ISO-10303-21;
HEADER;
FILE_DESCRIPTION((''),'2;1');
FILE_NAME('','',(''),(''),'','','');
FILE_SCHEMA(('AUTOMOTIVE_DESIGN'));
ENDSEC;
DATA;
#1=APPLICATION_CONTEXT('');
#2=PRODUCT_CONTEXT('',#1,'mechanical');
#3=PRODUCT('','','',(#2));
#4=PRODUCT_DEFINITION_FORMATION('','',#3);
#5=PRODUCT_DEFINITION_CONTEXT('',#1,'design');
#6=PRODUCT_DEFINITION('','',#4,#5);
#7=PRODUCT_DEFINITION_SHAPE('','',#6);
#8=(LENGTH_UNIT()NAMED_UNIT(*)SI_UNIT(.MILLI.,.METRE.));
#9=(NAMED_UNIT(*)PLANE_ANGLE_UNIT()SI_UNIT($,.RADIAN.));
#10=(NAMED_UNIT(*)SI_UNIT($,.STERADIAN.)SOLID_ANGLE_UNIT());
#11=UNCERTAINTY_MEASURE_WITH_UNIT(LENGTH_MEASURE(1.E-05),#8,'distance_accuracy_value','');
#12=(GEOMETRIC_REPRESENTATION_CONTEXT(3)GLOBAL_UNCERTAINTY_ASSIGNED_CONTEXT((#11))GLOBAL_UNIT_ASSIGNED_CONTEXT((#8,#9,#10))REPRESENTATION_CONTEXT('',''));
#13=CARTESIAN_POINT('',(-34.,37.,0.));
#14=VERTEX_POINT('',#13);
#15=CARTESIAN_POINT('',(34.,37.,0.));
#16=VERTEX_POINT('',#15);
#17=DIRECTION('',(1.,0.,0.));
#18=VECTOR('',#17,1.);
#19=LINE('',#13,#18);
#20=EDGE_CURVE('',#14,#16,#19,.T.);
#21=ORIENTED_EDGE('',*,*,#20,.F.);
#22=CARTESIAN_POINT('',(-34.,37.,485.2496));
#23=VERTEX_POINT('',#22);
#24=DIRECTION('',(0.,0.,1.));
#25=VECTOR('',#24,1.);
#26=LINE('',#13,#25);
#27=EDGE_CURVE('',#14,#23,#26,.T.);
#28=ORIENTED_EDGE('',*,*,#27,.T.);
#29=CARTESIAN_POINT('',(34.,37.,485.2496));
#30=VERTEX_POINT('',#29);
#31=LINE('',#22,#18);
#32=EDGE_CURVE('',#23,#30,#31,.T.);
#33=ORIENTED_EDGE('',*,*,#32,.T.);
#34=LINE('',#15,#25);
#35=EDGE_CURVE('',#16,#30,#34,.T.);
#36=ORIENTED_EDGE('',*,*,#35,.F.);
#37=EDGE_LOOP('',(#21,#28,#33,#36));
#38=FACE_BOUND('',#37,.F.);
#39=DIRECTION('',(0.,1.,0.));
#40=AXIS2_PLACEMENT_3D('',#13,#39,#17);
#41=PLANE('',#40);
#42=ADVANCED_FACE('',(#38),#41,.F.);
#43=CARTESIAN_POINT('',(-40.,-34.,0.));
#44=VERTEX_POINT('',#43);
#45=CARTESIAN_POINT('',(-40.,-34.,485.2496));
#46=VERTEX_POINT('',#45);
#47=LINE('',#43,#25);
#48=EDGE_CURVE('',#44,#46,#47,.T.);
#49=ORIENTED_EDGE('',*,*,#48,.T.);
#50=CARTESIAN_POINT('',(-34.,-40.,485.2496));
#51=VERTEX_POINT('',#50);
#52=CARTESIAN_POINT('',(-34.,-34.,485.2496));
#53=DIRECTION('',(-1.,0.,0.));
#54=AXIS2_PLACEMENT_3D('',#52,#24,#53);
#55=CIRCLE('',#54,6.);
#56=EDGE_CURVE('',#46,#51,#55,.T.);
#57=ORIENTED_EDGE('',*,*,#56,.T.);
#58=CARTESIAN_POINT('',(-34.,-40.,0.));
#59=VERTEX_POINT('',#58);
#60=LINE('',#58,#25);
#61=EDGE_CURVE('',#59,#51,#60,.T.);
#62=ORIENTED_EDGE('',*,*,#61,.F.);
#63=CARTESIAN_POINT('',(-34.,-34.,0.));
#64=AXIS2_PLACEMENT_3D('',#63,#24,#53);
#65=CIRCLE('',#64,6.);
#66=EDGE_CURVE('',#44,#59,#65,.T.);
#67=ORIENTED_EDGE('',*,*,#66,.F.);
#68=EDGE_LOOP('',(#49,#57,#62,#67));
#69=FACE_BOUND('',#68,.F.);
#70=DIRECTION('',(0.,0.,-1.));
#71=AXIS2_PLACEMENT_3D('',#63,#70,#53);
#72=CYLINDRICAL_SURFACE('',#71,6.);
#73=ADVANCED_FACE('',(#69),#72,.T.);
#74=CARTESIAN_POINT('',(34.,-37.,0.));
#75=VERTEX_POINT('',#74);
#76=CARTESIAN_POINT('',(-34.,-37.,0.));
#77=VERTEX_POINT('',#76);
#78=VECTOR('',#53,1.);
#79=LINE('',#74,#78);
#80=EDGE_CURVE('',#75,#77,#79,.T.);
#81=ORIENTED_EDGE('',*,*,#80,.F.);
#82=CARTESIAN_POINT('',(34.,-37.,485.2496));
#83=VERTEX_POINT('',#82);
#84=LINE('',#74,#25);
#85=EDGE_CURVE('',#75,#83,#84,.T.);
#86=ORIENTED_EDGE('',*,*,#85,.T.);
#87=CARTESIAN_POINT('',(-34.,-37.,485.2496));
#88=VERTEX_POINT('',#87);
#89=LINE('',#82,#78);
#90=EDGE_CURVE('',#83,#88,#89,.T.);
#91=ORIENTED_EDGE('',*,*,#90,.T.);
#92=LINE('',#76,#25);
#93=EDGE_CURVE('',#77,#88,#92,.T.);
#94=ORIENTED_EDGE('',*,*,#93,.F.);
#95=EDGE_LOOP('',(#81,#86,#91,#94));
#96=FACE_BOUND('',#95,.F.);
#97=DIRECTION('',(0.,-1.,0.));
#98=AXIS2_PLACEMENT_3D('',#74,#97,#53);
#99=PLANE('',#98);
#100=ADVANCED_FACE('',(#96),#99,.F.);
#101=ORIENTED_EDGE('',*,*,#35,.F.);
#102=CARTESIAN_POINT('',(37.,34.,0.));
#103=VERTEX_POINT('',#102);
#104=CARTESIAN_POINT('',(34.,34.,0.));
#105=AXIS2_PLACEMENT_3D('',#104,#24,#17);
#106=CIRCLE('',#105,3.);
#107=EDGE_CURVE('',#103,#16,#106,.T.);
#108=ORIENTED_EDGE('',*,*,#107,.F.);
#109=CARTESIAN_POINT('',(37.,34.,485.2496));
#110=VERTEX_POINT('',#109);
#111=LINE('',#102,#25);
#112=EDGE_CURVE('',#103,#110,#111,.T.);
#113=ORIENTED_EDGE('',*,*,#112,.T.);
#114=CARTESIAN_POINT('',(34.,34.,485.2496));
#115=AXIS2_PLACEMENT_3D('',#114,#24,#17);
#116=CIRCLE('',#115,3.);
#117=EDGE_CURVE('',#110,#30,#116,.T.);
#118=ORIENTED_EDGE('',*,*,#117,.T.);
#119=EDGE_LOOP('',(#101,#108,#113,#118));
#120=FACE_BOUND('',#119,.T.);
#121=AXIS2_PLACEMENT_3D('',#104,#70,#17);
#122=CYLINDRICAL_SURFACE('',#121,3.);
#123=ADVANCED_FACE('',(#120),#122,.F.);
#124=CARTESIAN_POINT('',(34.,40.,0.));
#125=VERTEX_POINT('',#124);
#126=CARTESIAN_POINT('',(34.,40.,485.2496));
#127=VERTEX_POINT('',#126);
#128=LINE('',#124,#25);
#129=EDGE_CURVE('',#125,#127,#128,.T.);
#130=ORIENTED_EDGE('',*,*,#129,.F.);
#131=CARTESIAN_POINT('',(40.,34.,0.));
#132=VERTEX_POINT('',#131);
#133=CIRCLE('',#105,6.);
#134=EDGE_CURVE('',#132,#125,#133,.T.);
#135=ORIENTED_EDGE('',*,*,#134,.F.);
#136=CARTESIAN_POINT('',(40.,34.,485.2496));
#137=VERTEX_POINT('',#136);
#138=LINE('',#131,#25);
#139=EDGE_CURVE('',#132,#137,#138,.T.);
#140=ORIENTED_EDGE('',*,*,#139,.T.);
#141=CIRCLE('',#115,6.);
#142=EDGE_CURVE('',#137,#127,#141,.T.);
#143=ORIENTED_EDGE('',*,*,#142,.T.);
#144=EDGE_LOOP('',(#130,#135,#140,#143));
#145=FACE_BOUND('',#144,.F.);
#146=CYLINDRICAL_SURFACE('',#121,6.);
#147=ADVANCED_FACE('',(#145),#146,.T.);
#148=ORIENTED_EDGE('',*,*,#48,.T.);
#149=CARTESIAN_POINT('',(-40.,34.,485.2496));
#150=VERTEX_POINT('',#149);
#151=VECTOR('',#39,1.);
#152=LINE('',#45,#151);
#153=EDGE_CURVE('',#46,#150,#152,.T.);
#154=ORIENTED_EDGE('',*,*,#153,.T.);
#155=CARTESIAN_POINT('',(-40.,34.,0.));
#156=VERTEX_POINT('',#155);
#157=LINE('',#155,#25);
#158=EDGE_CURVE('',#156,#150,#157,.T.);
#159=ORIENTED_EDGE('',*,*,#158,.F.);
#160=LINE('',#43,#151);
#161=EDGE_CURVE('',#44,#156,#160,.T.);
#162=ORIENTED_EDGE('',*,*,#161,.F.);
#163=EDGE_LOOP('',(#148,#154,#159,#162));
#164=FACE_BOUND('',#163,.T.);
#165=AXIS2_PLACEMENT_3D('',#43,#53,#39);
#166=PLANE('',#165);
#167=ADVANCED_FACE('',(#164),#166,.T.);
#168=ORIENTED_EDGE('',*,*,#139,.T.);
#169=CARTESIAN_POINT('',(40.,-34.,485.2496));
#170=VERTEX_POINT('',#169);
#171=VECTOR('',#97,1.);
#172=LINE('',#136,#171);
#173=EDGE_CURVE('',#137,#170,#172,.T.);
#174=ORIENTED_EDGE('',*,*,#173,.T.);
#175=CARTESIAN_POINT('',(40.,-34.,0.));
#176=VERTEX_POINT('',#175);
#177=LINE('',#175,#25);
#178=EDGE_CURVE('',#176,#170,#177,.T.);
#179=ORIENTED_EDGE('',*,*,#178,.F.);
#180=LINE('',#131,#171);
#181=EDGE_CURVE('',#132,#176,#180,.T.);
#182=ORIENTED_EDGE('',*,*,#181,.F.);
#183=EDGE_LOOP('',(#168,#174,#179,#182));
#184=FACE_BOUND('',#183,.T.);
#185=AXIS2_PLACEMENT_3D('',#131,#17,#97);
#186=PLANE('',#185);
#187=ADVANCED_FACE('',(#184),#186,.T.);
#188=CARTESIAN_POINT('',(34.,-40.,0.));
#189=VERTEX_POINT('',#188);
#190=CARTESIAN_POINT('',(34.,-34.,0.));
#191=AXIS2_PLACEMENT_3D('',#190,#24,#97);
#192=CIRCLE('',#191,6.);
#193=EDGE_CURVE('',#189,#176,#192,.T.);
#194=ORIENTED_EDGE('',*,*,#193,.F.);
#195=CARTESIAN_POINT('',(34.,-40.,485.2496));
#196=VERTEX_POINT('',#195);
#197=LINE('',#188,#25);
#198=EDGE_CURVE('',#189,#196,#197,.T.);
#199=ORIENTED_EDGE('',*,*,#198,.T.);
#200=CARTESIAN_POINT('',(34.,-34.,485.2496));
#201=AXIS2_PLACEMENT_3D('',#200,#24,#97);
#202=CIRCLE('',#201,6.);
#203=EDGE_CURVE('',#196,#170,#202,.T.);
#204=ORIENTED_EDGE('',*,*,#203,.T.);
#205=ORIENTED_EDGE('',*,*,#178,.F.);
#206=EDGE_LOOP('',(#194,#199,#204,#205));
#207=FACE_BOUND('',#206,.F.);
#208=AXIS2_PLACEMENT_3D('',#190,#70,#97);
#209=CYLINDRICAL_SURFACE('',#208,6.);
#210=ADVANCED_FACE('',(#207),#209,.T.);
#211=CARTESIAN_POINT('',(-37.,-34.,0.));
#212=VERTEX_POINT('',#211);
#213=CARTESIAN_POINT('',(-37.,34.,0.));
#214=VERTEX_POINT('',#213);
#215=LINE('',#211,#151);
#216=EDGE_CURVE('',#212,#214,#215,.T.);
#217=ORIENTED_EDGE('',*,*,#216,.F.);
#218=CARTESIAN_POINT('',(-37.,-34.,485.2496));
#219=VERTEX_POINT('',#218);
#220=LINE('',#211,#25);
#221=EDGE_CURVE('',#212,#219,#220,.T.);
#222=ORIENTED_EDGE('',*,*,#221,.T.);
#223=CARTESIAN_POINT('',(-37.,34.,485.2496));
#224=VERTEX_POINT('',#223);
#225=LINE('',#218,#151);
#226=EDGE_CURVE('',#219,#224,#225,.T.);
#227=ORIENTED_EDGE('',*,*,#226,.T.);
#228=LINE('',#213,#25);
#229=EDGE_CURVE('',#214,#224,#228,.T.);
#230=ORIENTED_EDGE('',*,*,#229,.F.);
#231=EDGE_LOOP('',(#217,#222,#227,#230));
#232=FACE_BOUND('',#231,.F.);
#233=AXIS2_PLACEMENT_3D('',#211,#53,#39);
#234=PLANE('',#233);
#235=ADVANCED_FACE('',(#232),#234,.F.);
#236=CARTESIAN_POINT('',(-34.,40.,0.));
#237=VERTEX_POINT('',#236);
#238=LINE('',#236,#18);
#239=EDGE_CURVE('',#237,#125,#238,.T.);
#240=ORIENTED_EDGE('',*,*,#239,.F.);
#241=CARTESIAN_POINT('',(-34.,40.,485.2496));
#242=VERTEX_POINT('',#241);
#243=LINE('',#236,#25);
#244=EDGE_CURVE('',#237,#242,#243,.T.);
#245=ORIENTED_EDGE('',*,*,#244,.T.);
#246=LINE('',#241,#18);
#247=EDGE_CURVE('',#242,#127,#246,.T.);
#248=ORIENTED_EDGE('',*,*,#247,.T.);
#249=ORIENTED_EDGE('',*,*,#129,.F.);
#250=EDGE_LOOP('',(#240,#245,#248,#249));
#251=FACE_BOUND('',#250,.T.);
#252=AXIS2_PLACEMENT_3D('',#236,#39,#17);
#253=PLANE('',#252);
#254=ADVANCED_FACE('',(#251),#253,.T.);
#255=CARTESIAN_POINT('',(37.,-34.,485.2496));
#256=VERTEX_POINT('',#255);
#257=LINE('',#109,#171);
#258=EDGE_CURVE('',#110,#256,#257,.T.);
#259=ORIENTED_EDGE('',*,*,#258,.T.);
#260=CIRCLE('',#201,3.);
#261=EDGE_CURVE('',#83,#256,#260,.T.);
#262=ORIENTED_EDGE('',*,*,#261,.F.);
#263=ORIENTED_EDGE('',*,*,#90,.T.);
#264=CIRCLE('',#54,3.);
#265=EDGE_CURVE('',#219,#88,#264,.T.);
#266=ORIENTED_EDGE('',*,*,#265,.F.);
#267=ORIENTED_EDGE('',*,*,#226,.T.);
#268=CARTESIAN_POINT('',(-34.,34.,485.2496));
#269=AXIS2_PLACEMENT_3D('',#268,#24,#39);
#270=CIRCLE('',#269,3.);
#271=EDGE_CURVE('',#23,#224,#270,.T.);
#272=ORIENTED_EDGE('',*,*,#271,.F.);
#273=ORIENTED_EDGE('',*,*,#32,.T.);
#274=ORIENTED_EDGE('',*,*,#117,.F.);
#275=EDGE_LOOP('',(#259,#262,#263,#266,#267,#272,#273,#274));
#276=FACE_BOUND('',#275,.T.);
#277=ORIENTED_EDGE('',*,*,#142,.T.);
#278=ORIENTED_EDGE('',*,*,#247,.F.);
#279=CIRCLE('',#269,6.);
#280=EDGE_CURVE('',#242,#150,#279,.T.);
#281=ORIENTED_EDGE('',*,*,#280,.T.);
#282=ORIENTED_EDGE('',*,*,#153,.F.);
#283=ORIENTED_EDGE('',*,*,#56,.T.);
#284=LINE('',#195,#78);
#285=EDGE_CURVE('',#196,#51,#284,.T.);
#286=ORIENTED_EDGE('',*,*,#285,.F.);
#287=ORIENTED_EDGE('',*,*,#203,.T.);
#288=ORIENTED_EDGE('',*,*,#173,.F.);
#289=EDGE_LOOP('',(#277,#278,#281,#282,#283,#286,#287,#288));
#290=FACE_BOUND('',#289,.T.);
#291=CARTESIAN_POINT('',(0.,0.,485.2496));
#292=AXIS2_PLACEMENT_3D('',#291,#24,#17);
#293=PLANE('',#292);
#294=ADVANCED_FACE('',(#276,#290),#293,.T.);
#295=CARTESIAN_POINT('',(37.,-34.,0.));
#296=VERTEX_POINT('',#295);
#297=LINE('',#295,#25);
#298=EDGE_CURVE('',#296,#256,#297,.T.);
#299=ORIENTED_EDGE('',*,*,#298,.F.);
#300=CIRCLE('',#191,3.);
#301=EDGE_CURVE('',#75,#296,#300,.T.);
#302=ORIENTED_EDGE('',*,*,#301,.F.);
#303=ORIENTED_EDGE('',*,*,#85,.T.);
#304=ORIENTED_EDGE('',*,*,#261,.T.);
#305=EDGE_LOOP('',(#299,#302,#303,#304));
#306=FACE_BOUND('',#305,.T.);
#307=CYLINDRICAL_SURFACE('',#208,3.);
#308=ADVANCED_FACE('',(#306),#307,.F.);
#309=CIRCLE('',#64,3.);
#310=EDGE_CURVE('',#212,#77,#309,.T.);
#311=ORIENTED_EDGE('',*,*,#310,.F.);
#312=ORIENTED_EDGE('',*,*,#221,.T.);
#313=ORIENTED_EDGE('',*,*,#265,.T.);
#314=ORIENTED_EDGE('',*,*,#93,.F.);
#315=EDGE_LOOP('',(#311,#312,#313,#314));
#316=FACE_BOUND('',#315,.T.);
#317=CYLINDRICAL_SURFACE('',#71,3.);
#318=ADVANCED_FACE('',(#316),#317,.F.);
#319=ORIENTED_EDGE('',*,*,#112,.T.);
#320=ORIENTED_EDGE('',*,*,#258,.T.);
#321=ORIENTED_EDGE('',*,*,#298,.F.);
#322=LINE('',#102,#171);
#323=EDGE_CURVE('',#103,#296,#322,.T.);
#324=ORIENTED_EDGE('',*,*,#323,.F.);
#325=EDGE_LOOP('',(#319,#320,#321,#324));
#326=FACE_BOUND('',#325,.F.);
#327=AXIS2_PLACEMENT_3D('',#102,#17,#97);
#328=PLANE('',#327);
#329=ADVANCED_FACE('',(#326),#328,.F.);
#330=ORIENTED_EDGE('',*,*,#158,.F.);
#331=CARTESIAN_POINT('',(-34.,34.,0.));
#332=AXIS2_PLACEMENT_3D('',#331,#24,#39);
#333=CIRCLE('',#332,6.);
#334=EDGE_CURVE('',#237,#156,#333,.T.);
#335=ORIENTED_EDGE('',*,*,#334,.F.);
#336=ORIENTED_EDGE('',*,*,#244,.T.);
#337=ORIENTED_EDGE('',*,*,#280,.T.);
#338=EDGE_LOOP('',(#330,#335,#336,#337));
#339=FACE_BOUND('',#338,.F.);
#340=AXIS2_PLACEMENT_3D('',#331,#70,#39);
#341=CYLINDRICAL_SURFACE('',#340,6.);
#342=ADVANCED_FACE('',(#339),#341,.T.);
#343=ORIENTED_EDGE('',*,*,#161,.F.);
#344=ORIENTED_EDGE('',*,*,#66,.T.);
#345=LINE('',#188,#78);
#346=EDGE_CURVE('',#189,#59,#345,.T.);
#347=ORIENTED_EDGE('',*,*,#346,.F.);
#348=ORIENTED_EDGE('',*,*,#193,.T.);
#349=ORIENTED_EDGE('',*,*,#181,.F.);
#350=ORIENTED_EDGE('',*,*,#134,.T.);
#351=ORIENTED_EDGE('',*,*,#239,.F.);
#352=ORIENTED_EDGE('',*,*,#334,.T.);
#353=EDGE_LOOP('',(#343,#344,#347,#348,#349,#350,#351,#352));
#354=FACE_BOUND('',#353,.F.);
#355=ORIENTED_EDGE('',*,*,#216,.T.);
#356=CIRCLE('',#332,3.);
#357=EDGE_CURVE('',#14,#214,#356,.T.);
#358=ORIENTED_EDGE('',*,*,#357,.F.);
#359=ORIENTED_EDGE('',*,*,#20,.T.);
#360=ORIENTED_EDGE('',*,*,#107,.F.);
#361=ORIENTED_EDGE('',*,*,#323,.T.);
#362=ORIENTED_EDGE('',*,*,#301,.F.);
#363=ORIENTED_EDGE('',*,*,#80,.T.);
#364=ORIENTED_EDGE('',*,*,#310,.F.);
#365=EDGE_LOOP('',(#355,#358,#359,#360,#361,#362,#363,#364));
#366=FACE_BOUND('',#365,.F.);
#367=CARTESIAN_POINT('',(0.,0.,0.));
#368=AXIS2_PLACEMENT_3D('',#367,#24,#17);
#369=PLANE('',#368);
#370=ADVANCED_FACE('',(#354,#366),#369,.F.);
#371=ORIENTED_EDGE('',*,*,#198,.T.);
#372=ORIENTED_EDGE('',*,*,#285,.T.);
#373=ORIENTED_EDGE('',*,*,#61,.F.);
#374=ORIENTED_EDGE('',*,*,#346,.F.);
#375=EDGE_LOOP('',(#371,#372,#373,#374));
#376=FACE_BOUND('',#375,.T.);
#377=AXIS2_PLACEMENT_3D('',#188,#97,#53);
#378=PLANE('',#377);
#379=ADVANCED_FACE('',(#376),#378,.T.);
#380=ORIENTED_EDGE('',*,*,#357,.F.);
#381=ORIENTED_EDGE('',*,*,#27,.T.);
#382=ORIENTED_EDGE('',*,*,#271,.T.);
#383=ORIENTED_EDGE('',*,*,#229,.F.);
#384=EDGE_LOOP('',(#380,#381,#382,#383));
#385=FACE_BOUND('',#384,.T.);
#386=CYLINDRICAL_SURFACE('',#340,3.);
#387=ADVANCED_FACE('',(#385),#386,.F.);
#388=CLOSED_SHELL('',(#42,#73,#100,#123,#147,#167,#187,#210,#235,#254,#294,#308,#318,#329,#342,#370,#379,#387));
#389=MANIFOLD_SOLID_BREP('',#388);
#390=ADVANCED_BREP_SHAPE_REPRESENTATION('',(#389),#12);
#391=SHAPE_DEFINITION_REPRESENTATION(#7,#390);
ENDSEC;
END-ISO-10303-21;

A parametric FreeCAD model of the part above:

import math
import FreeCAD as App
import Part
import Sketcher
Q = App.Units.Quantity

doc = App.newDocument("Part")
body = doc.addObject("PartDesign::Body", "Body")

# Sketch on XY plane
sketch1 = body.newObject("Sketcher::SketchObject", "Sketch")
sketch1.AttachmentSupport = (doc.getObject("XY_Plane"), [""])
sketch1.MapMode = "FlatFace"
sketch1.addGeometry([
    Part.LineSegment(App.Vector(-40, 34, 0), App.Vector(-40, -34, 0)),  # 0
    Part.ArcOfCircle(Part.Circle(App.Vector(-34, -34, 0), App.Vector(0, 0, 1), 6), math.radians(180), math.radians(270)),  # 1
    Part.LineSegment(App.Vector(-34, -40, 0), App.Vector(34, -40, 0)),  # 2
    Part.ArcOfCircle(Part.Circle(App.Vector(34, -34, 0), App.Vector(0, 0, 1), 6), math.radians(-90), math.radians(0)),  # 3
    Part.LineSegment(App.Vector(40, -34, 0), App.Vector(40, 34, 0)),  # 4
    Part.ArcOfCircle(Part.Circle(App.Vector(34, 34, 0), App.Vector(0, 0, 1), 6), math.radians(0), math.radians(90)),  # 5
    Part.LineSegment(App.Vector(34, 40, 0), App.Vector(-34, 40, 0)),  # 6
    Part.ArcOfCircle(Part.Circle(App.Vector(-34, 34, 0), App.Vector(0, 0, 1), 6), math.radians(90), math.radians(180)),  # 7
    Part.ArcOfCircle(Part.Circle(App.Vector(-34, 34, 0), App.Vector(0, 0, 1), 3), math.radians(90), math.radians(180)),  # 8
    Part.LineSegment(App.Vector(-34, 37, 0), App.Vector(34, 37, 0)),  # 9
    Part.ArcOfCircle(Part.Circle(App.Vector(34, 34, 0), App.Vector(0, 0, 1), 3), math.radians(0), math.radians(90)),  # 10
    Part.LineSegment(App.Vector(37, 34, 0), App.Vector(37, -34, 0)),  # 11
    Part.ArcOfCircle(Part.Circle(App.Vector(34, -34, 0), App.Vector(0, 0, 1), 3), math.radians(-90), math.radians(0)),  # 12
    Part.LineSegment(App.Vector(34, -37, 0), App.Vector(-34, -37, 0)),  # 13
    Part.ArcOfCircle(Part.Circle(App.Vector(-34, -34, 0), App.Vector(0, 0, 1), 3), math.radians(180), math.radians(270)),  # 14
    Part.LineSegment(App.Vector(-37, -34, 0), App.Vector(-37, 34, 0)),  # 15
], False)
sketch1.addConstraint([
    Sketcher.Constraint("Tangent", 0, 2, 1, 1),
    Sketcher.Constraint("Tangent", 1, 2, 2, 1),
    Sketcher.Constraint("Tangent", 2, 2, 3, 1),
    Sketcher.Constraint("Tangent", 3, 2, 4, 1),
    Sketcher.Constraint("Tangent", 4, 2, 5, 1),
    Sketcher.Constraint("Tangent", 5, 2, 6, 1),
    Sketcher.Constraint("Tangent", 6, 2, 7, 1),
    Sketcher.Constraint("Tangent", 7, 2, 0, 1),
    Sketcher.Constraint("Tangent", 8, 1, 9, 1),
    Sketcher.Constraint("Tangent", 9, 2, 10, 2),
    Sketcher.Constraint("Tangent", 10, 1, 11, 1),
    Sketcher.Constraint("Tangent", 11, 2, 12, 2),
    Sketcher.Constraint("Tangent", 12, 1, 13, 1),
    Sketcher.Constraint("Tangent", 13, 2, 14, 2),
    Sketcher.Constraint("Tangent", 14, 1, 15, 1),
    Sketcher.Constraint("Tangent", 15, 2, 8, 2),
    Sketcher.Constraint("Vertical", 0),
    Sketcher.Constraint("Horizontal", 2),
    Sketcher.Constraint("Vertical", 4),
    Sketcher.Constraint("Horizontal", 6),
    Sketcher.Constraint("Horizontal", 9),
    Sketcher.Constraint("Vertical", 11),
    Sketcher.Constraint("Horizontal", 13),
    Sketcher.Constraint("Vertical", 15),
    Sketcher.Constraint("Coincident", 8, 3, 7, 3),
    Sketcher.Constraint("Coincident", 10, 3, 5, 3),
    Sketcher.Constraint("Coincident", 12, 3, 3, 3),
    Sketcher.Constraint("Equal", 1, 3),
    Sketcher.Constraint("Equal", 3, 5),
    Sketcher.Constraint("Equal", 5, 7),
    Sketcher.Constraint("Equal", 12, 14),
    Sketcher.Constraint("Symmetric", 1, 3, 5, 3, -1, 1),
    Sketcher.Constraint("Equal", 13, 0),
    Sketcher.Constraint("Radius", 1, Q("6 mm")),
    Sketcher.Constraint("Radius", 8, Q("3 mm")),
    Sketcher.Constraint("DistanceX", 0, 2, -1, 1, Q("40 mm")),
])
pad1 = body.newObject("PartDesign::Pad", "Pad")
pad1.Profile = sketch1
pad1.Length = 485.2496

doc.recompute()
